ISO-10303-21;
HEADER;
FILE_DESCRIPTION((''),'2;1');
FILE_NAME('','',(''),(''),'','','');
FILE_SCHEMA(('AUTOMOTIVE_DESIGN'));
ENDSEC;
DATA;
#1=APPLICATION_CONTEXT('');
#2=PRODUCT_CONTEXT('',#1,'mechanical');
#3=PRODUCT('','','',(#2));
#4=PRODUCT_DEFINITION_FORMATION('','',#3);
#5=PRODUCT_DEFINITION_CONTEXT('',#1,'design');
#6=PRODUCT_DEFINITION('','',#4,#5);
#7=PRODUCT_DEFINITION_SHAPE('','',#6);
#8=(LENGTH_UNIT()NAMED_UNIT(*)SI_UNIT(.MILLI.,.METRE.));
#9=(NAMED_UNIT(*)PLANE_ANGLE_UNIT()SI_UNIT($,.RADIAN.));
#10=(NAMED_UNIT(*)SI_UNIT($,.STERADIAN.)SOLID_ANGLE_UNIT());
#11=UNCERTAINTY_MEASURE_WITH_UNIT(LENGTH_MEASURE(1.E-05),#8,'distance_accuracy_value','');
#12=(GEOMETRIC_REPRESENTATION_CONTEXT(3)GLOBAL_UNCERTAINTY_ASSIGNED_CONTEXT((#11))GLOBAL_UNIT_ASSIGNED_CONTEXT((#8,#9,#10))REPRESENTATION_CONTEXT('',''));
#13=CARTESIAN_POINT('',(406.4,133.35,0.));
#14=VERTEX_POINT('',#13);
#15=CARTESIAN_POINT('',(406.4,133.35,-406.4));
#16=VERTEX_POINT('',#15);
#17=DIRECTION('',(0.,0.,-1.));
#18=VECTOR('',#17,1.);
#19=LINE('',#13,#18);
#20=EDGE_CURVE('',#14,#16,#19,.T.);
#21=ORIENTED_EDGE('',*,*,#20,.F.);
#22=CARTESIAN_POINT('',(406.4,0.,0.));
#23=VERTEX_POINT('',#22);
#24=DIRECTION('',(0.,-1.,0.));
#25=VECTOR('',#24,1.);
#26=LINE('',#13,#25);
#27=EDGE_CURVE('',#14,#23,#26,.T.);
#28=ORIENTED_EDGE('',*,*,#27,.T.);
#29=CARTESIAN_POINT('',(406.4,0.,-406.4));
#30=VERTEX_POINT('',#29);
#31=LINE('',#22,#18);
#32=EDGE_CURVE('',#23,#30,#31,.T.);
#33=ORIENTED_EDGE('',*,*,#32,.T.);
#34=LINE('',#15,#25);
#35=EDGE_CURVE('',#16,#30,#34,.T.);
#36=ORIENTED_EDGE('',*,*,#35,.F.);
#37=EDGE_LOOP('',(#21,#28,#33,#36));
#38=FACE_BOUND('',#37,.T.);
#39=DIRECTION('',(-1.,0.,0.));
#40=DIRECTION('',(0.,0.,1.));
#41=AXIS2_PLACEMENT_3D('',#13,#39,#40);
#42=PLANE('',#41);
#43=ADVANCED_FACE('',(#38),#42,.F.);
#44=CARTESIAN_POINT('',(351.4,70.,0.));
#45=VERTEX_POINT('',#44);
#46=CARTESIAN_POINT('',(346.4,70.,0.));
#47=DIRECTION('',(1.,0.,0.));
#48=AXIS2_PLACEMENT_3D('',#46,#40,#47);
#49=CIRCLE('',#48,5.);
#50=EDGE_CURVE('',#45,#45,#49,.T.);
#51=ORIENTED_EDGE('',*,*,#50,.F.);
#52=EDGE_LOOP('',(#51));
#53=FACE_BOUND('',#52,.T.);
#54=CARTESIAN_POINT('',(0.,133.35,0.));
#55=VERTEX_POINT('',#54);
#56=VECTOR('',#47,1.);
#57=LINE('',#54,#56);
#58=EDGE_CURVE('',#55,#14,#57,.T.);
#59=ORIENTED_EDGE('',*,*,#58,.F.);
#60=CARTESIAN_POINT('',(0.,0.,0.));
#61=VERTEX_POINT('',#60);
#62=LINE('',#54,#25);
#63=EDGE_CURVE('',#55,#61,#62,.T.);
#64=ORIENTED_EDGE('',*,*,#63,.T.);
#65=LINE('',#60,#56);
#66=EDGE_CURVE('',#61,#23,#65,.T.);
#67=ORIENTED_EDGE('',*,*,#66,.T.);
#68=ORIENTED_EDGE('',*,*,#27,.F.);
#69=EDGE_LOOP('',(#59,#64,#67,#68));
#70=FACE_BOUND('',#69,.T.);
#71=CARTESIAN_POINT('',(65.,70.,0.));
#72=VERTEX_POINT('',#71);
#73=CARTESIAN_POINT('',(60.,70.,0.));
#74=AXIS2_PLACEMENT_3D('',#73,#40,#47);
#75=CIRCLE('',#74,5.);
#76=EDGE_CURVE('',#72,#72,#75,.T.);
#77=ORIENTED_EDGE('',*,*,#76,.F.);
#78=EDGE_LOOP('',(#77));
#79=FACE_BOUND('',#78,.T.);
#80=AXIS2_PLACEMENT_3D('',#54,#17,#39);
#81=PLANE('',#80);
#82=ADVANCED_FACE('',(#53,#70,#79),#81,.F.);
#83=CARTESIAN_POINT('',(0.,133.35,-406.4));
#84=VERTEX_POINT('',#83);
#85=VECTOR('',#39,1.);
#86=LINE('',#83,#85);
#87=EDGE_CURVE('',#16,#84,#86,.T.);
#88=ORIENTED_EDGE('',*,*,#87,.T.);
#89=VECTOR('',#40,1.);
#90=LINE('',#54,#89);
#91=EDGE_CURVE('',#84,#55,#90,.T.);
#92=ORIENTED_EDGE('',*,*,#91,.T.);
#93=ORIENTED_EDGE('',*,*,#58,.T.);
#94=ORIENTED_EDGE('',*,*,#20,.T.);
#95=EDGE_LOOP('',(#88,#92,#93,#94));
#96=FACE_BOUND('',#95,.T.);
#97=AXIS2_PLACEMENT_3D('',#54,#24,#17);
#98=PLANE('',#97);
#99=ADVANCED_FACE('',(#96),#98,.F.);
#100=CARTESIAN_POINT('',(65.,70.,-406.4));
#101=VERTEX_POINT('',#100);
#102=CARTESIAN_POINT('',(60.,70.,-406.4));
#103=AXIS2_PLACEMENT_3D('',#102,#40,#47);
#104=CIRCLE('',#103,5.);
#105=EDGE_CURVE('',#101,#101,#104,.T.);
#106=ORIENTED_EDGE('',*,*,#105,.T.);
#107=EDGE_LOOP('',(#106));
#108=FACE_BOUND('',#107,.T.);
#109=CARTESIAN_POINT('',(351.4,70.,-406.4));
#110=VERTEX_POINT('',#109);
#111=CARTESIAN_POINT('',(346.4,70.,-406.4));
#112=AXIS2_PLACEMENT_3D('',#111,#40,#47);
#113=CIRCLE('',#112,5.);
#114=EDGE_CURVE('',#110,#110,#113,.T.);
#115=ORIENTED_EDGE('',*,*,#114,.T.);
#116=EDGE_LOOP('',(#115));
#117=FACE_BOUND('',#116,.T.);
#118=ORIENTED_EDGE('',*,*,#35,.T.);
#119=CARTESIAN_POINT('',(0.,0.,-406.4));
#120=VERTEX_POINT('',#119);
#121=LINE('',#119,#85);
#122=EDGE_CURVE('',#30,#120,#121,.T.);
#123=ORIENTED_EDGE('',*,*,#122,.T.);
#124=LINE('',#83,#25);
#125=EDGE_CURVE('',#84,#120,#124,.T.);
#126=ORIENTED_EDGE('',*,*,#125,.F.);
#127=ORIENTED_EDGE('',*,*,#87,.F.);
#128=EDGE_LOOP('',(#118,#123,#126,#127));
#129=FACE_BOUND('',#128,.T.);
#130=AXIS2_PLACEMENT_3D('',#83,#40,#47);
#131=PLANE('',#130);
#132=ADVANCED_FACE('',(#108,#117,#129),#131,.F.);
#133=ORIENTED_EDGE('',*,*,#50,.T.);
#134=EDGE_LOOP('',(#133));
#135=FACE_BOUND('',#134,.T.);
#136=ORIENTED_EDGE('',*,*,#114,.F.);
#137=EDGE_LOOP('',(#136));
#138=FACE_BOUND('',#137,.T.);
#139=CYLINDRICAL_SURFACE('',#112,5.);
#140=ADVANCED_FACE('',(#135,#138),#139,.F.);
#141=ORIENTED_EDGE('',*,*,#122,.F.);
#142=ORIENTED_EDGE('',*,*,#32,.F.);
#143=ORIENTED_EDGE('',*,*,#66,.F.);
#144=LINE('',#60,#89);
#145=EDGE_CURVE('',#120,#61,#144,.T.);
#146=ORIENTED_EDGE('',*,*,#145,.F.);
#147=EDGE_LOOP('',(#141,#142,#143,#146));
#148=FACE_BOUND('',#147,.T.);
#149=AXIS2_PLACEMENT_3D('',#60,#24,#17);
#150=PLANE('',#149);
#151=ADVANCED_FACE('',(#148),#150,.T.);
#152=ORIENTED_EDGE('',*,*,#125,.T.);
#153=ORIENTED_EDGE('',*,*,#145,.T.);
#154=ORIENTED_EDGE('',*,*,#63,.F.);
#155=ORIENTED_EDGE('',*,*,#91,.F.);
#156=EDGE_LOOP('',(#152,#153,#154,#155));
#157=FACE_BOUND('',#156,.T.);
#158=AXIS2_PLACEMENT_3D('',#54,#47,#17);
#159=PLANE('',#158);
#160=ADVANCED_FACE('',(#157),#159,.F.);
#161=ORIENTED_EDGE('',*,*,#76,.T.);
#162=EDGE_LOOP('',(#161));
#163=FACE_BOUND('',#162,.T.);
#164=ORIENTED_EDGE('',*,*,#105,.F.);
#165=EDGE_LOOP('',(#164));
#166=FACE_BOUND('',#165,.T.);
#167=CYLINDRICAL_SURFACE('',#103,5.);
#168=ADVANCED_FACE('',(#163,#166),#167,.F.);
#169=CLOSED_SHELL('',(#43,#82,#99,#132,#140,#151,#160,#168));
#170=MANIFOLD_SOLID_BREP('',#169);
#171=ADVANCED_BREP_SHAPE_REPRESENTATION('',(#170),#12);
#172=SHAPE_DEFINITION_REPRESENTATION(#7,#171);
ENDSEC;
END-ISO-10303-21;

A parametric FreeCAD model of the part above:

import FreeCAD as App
import Part
import Sketcher

V = App.Vector

doc = App.newDocument("Part")
body = doc.addObject("PartDesign::Body", "Body")

# Sketch on XZ plane
sketch1 = body.newObject("Sketcher::SketchObject", "Sketch")
sketch1.AttachmentSupport = (doc.getObject("XZ_Plane"), [""])
sketch1.MapMode = "FlatFace"
sketch1.addGeometry([
    Part.LineSegment(V(0, -406, 0), V(0, 0, 0)),
    Part.LineSegment(V(0, 0, 0), V(406, 0, 0)),
    Part.LineSegment(V(406, 0, 0), V(406, -406, 0)),
    Part.LineSegment(V(406, -406, 0), V(0, -406, 0)),
], False)
sketch1.addConstraint([
    Sketcher.Constraint("Coincident", 0, 2, 1, 1),
    Sketcher.Constraint("Coincident", 1, 2, 2, 1),
    Sketcher.Constraint("Coincident", 2, 2, 3, 1),
    Sketcher.Constraint("Coincident", 3, 2, 0, 1),
    Sketcher.Constraint("Vertical", 0),
    Sketcher.Constraint("Horizontal", 1),
    Sketcher.Constraint("Vertical", 2),
    Sketcher.Constraint("Horizontal", 3),
    Sketcher.Constraint("Coincident", 0, 2, -1, 1),
    Sketcher.Constraint("Equal", 3, 0),
    Sketcher.Constraint("DistanceX", 1, 1, 1, 2, 406.4),
])
pad1 = body.newObject("PartDesign::Pad", "Pad")
pad1.Profile = sketch1
pad1.Length = 133.35
pad1.Reversed = True

# Sketch on XY plane
sketch2 = body.newObject("Sketcher::SketchObject", "Sketch001")
sketch2.AttachmentSupport = (doc.getObject("XY_Plane"), [""])
sketch2.MapMode = "FlatFace"
sketch2.addGeometry([
    Part.Circle(V(60, 70, 0), V(0, 0, 1), 5),
    Part.Circle(V(346, 70, 0), V(0, 0, 1), 5),
], False)
sketch2.addConstraint([
    Sketcher.Constraint("Equal", 0, 1),
    Sketcher.Constraint("Horizontal", 0, 3, 1, 3),
    Sketcher.Constraint("Diameter", 0, 10.0),
    Sketcher.Constraint("DistanceX", -1, 1, 0, 3, 60.0),
    Sketcher.Constraint("DistanceY", -1, 1, 0, 3, 70.0),
    Sketcher.Constraint("DistanceX", -1, 1, 1, 3, 346.4),
])
pocket1 = body.newObject("PartDesign::Pocket", "Pocket")
pocket1.Profile = sketch2
pocket1.Type = "ThroughAll"

doc.recompute()
